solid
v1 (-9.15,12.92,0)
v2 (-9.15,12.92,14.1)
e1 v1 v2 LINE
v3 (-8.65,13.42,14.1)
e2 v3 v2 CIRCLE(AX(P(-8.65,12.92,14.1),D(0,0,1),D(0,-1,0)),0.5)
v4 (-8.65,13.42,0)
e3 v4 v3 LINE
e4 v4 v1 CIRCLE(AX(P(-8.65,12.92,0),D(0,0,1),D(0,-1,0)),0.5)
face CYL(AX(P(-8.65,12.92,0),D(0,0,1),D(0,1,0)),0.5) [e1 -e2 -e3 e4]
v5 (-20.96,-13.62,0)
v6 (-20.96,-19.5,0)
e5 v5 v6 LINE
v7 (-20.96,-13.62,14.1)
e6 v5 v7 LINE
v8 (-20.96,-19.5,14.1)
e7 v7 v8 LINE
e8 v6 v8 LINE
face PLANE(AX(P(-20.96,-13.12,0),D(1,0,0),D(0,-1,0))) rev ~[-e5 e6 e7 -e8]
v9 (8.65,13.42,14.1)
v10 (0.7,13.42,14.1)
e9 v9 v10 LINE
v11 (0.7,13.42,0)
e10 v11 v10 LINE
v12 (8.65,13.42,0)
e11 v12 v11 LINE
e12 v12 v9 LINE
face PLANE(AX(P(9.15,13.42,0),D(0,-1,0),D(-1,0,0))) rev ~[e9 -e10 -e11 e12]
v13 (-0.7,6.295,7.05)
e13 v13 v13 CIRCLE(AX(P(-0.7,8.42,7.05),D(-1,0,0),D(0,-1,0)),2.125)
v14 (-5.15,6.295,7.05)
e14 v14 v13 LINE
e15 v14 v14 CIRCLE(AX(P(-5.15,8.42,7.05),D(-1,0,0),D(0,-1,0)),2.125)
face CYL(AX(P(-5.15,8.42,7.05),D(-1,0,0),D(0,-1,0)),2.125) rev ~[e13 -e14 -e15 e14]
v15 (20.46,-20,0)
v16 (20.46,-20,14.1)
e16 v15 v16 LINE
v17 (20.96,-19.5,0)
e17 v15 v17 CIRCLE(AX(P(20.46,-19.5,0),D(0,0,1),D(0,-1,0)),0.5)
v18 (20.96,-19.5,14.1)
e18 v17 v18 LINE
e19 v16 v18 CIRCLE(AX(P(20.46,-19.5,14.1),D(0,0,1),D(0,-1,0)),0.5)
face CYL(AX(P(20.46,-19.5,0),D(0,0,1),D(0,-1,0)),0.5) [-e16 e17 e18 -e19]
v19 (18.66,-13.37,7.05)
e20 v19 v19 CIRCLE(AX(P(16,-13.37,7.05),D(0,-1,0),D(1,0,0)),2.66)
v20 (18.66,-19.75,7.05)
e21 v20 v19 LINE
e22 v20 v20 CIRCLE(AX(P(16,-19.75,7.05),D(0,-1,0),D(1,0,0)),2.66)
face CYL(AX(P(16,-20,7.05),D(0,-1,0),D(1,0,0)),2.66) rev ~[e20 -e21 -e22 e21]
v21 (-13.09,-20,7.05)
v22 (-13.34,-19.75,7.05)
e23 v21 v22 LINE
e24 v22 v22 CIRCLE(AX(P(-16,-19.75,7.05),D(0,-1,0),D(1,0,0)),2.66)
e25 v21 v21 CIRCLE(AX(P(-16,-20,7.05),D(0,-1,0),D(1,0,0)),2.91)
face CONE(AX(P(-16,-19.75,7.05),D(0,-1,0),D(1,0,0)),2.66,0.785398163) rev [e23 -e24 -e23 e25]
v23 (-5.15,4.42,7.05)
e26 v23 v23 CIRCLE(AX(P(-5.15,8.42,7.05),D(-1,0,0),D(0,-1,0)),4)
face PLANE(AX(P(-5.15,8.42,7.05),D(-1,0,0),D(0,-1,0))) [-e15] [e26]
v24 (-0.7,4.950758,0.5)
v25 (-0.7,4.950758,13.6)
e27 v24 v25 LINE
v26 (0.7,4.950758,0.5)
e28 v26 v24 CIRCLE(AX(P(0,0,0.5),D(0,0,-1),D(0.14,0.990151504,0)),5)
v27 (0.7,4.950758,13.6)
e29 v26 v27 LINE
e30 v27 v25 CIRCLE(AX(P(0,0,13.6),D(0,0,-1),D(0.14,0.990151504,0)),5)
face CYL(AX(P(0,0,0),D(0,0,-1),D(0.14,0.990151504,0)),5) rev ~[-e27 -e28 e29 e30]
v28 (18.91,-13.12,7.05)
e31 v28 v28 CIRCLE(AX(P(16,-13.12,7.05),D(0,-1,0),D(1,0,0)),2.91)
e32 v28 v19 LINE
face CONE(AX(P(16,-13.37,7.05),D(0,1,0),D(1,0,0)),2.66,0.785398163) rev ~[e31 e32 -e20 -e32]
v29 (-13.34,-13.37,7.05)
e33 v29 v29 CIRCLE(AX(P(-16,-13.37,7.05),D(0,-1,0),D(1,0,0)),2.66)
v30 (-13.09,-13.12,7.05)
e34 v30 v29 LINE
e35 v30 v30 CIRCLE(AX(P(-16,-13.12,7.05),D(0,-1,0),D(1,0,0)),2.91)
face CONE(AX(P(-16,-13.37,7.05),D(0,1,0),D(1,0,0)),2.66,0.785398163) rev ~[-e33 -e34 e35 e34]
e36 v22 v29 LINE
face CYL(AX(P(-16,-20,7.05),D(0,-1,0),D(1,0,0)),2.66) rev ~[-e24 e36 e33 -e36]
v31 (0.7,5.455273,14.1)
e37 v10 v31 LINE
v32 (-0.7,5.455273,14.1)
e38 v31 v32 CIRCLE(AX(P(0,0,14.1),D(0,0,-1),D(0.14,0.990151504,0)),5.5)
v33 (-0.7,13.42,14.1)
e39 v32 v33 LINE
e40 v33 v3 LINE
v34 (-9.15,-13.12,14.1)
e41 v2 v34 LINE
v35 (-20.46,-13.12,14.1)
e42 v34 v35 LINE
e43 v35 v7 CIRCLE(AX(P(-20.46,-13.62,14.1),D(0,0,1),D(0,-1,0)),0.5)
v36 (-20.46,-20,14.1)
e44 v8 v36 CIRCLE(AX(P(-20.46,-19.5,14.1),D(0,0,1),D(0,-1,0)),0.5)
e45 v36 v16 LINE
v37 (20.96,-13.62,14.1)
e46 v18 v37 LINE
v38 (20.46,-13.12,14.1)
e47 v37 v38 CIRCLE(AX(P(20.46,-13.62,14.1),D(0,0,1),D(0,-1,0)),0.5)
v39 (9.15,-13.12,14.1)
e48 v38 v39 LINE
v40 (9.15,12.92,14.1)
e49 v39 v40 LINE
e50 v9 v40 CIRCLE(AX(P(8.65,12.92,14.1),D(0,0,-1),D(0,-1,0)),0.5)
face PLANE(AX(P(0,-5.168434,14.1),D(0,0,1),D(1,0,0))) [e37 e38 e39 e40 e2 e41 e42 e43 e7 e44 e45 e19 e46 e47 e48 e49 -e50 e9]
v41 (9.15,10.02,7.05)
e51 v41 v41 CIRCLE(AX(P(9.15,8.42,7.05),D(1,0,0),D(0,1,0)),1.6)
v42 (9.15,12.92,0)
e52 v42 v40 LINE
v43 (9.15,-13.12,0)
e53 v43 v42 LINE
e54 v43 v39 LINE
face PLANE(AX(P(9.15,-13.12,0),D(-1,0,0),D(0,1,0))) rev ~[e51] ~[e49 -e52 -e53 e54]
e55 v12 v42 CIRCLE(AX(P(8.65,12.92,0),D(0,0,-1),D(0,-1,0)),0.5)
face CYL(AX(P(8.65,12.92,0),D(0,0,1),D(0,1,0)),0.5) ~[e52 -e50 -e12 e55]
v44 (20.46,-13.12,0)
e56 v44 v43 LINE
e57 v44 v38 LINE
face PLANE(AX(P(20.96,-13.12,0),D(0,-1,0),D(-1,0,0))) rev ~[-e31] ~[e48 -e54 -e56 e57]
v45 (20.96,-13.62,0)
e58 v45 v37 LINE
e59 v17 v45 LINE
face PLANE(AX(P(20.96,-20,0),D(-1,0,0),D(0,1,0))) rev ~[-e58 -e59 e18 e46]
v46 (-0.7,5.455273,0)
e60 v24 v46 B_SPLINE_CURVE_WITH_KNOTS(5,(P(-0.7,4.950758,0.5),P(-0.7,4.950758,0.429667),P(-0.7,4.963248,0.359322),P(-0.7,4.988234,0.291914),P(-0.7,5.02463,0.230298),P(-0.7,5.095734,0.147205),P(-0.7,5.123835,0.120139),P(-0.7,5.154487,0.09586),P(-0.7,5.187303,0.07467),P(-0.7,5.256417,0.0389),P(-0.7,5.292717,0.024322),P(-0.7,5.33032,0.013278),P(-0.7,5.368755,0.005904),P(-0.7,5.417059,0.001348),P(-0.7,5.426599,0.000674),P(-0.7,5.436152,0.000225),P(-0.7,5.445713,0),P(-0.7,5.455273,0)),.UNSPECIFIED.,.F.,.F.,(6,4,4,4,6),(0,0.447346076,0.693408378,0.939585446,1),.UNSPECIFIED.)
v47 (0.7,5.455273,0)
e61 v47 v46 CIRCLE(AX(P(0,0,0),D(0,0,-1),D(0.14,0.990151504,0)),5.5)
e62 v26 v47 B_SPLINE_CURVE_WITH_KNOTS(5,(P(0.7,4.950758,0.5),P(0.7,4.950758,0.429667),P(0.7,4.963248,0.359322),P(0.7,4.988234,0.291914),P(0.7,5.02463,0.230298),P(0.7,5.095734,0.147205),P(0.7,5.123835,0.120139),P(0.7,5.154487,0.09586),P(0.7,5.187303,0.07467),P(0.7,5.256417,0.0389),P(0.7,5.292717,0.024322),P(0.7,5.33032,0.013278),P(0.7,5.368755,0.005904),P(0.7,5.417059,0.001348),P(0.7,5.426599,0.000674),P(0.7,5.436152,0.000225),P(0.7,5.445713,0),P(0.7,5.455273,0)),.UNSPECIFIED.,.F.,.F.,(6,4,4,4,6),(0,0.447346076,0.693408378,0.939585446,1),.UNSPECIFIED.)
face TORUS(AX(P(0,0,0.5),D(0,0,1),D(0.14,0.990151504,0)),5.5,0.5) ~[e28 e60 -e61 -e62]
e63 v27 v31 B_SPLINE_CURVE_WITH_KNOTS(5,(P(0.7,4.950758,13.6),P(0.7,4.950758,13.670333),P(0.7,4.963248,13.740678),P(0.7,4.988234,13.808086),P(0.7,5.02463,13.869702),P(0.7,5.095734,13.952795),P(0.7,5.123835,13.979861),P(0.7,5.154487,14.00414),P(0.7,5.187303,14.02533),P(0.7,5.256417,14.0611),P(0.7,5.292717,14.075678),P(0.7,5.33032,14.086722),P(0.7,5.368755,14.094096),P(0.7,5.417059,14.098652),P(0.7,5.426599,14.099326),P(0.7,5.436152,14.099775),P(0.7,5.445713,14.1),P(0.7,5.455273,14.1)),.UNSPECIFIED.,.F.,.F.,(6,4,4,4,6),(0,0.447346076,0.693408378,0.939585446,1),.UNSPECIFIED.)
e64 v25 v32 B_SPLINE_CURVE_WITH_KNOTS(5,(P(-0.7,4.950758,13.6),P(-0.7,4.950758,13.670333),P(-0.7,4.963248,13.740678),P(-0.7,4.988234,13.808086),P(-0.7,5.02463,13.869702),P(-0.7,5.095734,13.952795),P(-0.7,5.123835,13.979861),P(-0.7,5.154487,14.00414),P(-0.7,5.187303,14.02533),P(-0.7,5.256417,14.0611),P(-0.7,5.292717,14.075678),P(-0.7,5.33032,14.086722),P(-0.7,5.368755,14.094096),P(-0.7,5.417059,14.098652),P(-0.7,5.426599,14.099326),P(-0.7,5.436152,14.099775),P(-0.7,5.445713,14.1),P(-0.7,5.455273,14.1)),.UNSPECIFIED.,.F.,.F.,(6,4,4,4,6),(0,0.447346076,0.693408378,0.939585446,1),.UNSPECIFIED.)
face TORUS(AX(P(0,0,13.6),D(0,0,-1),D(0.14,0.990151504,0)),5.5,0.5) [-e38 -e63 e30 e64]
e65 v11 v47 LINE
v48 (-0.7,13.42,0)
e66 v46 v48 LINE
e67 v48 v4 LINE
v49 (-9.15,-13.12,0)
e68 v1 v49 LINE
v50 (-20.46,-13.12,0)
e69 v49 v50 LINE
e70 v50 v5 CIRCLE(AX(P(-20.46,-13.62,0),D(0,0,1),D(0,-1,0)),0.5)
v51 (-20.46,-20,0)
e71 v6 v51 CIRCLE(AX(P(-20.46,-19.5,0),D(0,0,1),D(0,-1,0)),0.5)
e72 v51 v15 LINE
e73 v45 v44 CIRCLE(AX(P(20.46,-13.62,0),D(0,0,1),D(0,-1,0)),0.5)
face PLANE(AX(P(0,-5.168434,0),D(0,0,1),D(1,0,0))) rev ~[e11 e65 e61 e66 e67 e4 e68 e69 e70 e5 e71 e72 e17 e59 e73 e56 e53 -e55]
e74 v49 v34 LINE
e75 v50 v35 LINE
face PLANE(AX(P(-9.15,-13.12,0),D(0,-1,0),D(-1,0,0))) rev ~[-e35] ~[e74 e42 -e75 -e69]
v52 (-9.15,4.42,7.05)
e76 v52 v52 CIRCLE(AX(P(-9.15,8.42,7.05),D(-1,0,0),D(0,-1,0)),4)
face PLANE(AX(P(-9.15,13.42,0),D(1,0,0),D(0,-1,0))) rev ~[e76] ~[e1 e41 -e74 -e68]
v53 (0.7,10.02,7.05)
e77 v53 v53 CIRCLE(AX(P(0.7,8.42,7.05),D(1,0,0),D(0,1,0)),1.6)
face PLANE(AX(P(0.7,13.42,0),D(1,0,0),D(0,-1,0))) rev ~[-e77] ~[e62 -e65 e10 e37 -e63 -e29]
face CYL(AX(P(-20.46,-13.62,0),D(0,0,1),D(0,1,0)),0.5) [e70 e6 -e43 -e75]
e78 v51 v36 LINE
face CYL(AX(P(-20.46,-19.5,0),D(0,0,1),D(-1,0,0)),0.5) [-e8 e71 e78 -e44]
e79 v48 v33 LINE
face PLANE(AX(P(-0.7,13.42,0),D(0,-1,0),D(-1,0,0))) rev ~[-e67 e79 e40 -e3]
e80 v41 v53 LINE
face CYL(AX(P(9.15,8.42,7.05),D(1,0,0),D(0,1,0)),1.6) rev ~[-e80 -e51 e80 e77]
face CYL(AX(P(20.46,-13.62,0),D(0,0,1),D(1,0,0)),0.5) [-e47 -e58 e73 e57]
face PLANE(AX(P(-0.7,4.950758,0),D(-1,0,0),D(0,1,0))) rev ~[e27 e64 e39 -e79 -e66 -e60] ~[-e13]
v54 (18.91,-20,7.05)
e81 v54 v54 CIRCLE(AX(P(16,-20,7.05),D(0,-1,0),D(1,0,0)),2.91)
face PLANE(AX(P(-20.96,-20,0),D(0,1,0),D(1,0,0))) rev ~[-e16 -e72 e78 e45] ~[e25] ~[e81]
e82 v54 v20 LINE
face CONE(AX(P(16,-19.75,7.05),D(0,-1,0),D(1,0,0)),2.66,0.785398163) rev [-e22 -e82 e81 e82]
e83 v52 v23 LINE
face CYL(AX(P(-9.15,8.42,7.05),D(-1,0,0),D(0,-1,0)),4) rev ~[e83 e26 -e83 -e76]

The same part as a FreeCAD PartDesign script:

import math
import FreeCAD as App
import Part
import Sketcher
Q = App.Units.Quantity


def edges_at(feature, points):
    """Names of the edges that pass closest to the given points."""
    edges = feature.Shape.Edges
    near = lambda p: min(range(len(edges)), key=lambda i: edges[i].distToShape(Part.Vertex(*p))[0])
    return sorted({f"Edge{near(p) + 1}" for p in points})

doc = App.newDocument("Part")
body = doc.addObject("PartDesign::Body", "Body")

# Sketch on XY plane
sketch1 = body.newObject("Sketcher::SketchObject", "Sketch")
sketch1.AttachmentSupport = (doc.getObject("XY_Plane"), [""])
sketch1.MapMode = "FlatFace"
sketch1.addGeometry([
    Part.ArcOfCircle(Part.Circle(App.Vector(0, 0, 0), App.Vector(0, 0, 1), 5), math.radians(98), math.radians(442)),  # 0
    Part.LineSegment(App.Vector(-0.7, 5, 0), App.Vector(-0.7, 13.4, 0)),  # 1
    Part.LineSegment(App.Vector(-0.7, 13.4, 0), App.Vector(-9.2, 13.4, 0)),  # 2
    Part.LineSegment(App.Vector(-9.2, 13.4, 0), App.Vector(-9.2, -13.1, 0)),  # 3
    Part.LineSegment(App.Vector(-9.2, -13.1, 0), App.Vector(-21, -13.1, 0)),  # 4
    Part.LineSegment(App.Vector(-21, -13.1, 0), App.Vector(-21, -20, 0)),  # 5
    Part.LineSegment(App.Vector(-21, -20, 0), App.Vector(21, -20, 0)),  # 6
    Part.LineSegment(App.Vector(21, -20, 0), App.Vector(21, -13.1, 0)),  # 7
    Part.LineSegment(App.Vector(21, -13.1, 0), App.Vector(9.2, -13.1, 0)),  # 8
    Part.LineSegment(App.Vector(9.2, -13.1, 0), App.Vector(9.2, 13.4, 0)),  # 9
    Part.LineSegment(App.Vector(9.2, 13.4, 0), App.Vector(0.7, 13.4, 0)),  # 10
    Part.LineSegment(App.Vector(0.7, 13.4, 0), App.Vector(0.7, 5, 0)),  # 11
], False)
sketch1.addConstraint([
    Sketcher.Constraint("Coincident", 0, 1, 1, 1),
    Sketcher.Constraint("Coincident", 1, 2, 2, 1),
    Sketcher.Constraint("Coincident", 2, 2, 3, 1),
    Sketcher.Constraint("Coincident", 3, 2, 4, 1),
    Sketcher.Constraint("Coincident", 4, 2, 5, 1),
    Sketcher.Constraint("Coincident", 5, 2, 6, 1),
    Sketcher.Constraint("Coincident", 6, 2, 7, 1),
    Sketcher.Constraint("Coincident", 7, 2, 8, 1),
    Sketcher.Constraint("Coincident", 8, 2, 9, 1),
    Sketcher.Constraint("Coincident", 9, 2, 10, 1),
    Sketcher.Constraint("Coincident", 10, 2, 11, 1),
    Sketcher.Constraint("Coincident", 11, 2, 0, 2),
    Sketcher.Constraint("Vertical", 1),
    Sketcher.Constraint("Horizontal", 2),
    Sketcher.Constraint("Vertical", 3),
    Sketcher.Constraint("Horizontal", 4),
    Sketcher.Constraint("Vertical", 5),
    Sketcher.Constraint("Horizontal", 6),
    Sketcher.Constraint("Vertical", 7),
    Sketcher.Constraint("Horizontal", 8),
    Sketcher.Constraint("Vertical", 9),
    Sketcher.Constraint("Horizontal", 10),
    Sketcher.Constraint("Vertical", 11),
    Sketcher.Constraint("Coincident", 0, 3, -1, 1),
    Sketcher.Constraint("Symmetric", 4, 2, 7, 2, -2),
    Sketcher.Constraint("Symmetric", 2, 2, 9, 2, -2),
    Sketcher.Constraint("Horizontal", 0, 1, 11, 2),
    Sketcher.Constraint("Radius", 0, Q("5 mm")),
    Sketcher.Constraint("DistanceY", 5, 2, -1, 1, Q("20 mm")),
    Sketcher.Constraint("DistanceX", 2, 2, 2, 1, Q("8.45 mm")),
    Sketcher.Constraint("DistanceX", 4, 2, 4, 1, Q("11.81 mm")),
    Sketcher.Constraint("DistanceX", 6, 1, 6, 2, Q("41.92 mm")),
    Sketcher.Constraint("DistanceY", 3, 2, 3, 1, Q("26.54 mm")),
    Sketcher.Constraint("DistanceY", 5, 2, 5, 1, Q("6.88 mm")),
])
pad1 = body.newObject("PartDesign::Pad", "Pad")
pad1.Profile = sketch1
pad1.Length = 14.1

# Sketch on YZ plane
sketch2 = body.newObject("Sketcher::SketchObject", "Sketch001")
sketch2.AttachmentSupport = (doc.getObject("YZ_Plane"), [""])
sketch2.MapMode = "FlatFace"
sketch2.AttachmentOffset = App.Placement(App.Vector(0, 0, 9.15), App.Rotation())
sketch2.addGeometry(Part.Circle(App.Vector(8.4, 7, 0), App.Vector(0, 0, 1), 1.6), False)
sketch2.addConstraint([
    Sketcher.Constraint("Diameter", 0, Q("3.2 mm")),
    Sketcher.Constraint("DistanceX", -1, 1, 0, 3, Q("8.42 mm")),
    Sketcher.Constraint("DistanceY", -1, 1, 0, 3, Q("7.05 mm")),
])
pocket1 = body.newObject("PartDesign::Pocket", "Pocket")
pocket1.Profile = sketch2
pocket1.Type = "ThroughAll"

# Sketch on YZ plane
sketch3 = body.newObject("Sketcher::SketchObject", "Sketch002")
sketch3.AttachmentSupport = (doc.getObject("YZ_Plane"), [""])
sketch3.MapMode = "FlatFace"
sketch3.AttachmentOffset = App.Placement(App.Vector(0, 0, -9.15), App.Rotation())
sketch3.addGeometry(Part.Circle(App.Vector(8.4, 7, 0), App.Vector(0, 0, 1), 4), False)
sketch3.addConstraint([
    Sketcher.Constraint("Diameter", 0, Q("8 mm")),
    Sketcher.Constraint("DistanceX", -1, 1, 0, 3, Q("8.42 mm")),
    Sketcher.Constraint("DistanceY", -1, 1, 0, 3, Q("7.05 mm")),
])
pocket2 = body.newObject("PartDesign::Pocket", "Pocket001")
pocket2.Profile = sketch3
pocket2.Length = 4
pocket2.Reversed = True

# Sketch on XZ plane
sketch4 = body.newObject("Sketcher::SketchObject", "Sketch003")
sketch4.AttachmentSupport = (doc.getObject("XZ_Plane"), [""])
sketch4.MapMode = "FlatFace"
sketch4.AttachmentOffset = App.Placement(App.Vector(0, 0, 20), App.Rotation())
sketch4.addGeometry([
    Part.Circle(App.Vector(-16, 7, 0), App.Vector(0, 0, 1), 2.7),
    Part.Circle(App.Vector(16, 7, 0), App.Vector(0, 0, 1), 2.7),
], False)
sketch4.addConstraint([
    Sketcher.Constraint("Equal", 0, 1),
    Sketcher.Constraint("Symmetric", 0, 3, 1, 3, -2),
    Sketcher.Constraint("Diameter", 0, Q("5.32 mm")),
    Sketcher.Constraint("DistanceX", 0, 3, -1, 1, Q("16 mm")),
    Sketcher.Constraint("DistanceY", -1, 1, 0, 3, Q("7.05 mm")),
])
pocket3 = body.newObject("PartDesign::Pocket", "Pocket002")
pocket3.Profile = sketch4
pocket3.Length = 25

# Sketch on YZ plane
sketch5 = body.newObject("Sketcher::SketchObject", "Sketch004")
sketch5.AttachmentSupport = (doc.getObject("YZ_Plane"), [""])
sketch5.MapMode = "FlatFace"
sketch5.AttachmentOffset = App.Placement(App.Vector(0, 0, -5.15), App.Rotation())
sketch5.addGeometry(Part.Circle(App.Vector(8.4, 7, 0), App.Vector(0, 0, 1), 2.1), False)
sketch5.addConstraint([
    Sketcher.Constraint("Diameter", 0, Q("4.25 mm")),
    Sketcher.Constraint("DistanceX", -1, 1, 0, 3, Q("8.42 mm")),
    Sketcher.Constraint("DistanceY", -1, 1, 0, 3, Q("7.05 mm")),
])
pocket4 = body.newObject("PartDesign::Pocket", "Pocket003")
pocket4.Profile = sketch5
pocket4.Length = 5.85
pocket4.Reversed = True
doc.recompute()

fillet = body.newObject("PartDesign::Fillet", "Fillet")
fillet.Base = (pocket4, edges_at(pocket4, [
    (-20.96, -13.12, 7.05),
    (-20.96, -20, 7.05),
    (20.96, -13.12, 7.05),
    (20.96, -20, 7.05),
    (9.15, 13.42, 7.05),
    (-9.15, 13.42, 7.05),
    (0, -5, 14.1),
    (0, -5, 0),
]))
fillet.Radius = 0.5
doc.recompute()

chamfer = body.newObject("PartDesign::Chamfer", "Chamfer")
chamfer.Base = (fillet, edges_at(fillet, [
    (13.34, -20, 7.05),
    (18.66, -16.56, 7.05),
    (13.34, -13.12, 7.05),
    (-18.66, -20, 7.05),
    (-13.34, -16.56, 7.05),
    (-18.66, -13.12, 7.05),
]))
chamfer.Size = 0.25

doc.recompute()
